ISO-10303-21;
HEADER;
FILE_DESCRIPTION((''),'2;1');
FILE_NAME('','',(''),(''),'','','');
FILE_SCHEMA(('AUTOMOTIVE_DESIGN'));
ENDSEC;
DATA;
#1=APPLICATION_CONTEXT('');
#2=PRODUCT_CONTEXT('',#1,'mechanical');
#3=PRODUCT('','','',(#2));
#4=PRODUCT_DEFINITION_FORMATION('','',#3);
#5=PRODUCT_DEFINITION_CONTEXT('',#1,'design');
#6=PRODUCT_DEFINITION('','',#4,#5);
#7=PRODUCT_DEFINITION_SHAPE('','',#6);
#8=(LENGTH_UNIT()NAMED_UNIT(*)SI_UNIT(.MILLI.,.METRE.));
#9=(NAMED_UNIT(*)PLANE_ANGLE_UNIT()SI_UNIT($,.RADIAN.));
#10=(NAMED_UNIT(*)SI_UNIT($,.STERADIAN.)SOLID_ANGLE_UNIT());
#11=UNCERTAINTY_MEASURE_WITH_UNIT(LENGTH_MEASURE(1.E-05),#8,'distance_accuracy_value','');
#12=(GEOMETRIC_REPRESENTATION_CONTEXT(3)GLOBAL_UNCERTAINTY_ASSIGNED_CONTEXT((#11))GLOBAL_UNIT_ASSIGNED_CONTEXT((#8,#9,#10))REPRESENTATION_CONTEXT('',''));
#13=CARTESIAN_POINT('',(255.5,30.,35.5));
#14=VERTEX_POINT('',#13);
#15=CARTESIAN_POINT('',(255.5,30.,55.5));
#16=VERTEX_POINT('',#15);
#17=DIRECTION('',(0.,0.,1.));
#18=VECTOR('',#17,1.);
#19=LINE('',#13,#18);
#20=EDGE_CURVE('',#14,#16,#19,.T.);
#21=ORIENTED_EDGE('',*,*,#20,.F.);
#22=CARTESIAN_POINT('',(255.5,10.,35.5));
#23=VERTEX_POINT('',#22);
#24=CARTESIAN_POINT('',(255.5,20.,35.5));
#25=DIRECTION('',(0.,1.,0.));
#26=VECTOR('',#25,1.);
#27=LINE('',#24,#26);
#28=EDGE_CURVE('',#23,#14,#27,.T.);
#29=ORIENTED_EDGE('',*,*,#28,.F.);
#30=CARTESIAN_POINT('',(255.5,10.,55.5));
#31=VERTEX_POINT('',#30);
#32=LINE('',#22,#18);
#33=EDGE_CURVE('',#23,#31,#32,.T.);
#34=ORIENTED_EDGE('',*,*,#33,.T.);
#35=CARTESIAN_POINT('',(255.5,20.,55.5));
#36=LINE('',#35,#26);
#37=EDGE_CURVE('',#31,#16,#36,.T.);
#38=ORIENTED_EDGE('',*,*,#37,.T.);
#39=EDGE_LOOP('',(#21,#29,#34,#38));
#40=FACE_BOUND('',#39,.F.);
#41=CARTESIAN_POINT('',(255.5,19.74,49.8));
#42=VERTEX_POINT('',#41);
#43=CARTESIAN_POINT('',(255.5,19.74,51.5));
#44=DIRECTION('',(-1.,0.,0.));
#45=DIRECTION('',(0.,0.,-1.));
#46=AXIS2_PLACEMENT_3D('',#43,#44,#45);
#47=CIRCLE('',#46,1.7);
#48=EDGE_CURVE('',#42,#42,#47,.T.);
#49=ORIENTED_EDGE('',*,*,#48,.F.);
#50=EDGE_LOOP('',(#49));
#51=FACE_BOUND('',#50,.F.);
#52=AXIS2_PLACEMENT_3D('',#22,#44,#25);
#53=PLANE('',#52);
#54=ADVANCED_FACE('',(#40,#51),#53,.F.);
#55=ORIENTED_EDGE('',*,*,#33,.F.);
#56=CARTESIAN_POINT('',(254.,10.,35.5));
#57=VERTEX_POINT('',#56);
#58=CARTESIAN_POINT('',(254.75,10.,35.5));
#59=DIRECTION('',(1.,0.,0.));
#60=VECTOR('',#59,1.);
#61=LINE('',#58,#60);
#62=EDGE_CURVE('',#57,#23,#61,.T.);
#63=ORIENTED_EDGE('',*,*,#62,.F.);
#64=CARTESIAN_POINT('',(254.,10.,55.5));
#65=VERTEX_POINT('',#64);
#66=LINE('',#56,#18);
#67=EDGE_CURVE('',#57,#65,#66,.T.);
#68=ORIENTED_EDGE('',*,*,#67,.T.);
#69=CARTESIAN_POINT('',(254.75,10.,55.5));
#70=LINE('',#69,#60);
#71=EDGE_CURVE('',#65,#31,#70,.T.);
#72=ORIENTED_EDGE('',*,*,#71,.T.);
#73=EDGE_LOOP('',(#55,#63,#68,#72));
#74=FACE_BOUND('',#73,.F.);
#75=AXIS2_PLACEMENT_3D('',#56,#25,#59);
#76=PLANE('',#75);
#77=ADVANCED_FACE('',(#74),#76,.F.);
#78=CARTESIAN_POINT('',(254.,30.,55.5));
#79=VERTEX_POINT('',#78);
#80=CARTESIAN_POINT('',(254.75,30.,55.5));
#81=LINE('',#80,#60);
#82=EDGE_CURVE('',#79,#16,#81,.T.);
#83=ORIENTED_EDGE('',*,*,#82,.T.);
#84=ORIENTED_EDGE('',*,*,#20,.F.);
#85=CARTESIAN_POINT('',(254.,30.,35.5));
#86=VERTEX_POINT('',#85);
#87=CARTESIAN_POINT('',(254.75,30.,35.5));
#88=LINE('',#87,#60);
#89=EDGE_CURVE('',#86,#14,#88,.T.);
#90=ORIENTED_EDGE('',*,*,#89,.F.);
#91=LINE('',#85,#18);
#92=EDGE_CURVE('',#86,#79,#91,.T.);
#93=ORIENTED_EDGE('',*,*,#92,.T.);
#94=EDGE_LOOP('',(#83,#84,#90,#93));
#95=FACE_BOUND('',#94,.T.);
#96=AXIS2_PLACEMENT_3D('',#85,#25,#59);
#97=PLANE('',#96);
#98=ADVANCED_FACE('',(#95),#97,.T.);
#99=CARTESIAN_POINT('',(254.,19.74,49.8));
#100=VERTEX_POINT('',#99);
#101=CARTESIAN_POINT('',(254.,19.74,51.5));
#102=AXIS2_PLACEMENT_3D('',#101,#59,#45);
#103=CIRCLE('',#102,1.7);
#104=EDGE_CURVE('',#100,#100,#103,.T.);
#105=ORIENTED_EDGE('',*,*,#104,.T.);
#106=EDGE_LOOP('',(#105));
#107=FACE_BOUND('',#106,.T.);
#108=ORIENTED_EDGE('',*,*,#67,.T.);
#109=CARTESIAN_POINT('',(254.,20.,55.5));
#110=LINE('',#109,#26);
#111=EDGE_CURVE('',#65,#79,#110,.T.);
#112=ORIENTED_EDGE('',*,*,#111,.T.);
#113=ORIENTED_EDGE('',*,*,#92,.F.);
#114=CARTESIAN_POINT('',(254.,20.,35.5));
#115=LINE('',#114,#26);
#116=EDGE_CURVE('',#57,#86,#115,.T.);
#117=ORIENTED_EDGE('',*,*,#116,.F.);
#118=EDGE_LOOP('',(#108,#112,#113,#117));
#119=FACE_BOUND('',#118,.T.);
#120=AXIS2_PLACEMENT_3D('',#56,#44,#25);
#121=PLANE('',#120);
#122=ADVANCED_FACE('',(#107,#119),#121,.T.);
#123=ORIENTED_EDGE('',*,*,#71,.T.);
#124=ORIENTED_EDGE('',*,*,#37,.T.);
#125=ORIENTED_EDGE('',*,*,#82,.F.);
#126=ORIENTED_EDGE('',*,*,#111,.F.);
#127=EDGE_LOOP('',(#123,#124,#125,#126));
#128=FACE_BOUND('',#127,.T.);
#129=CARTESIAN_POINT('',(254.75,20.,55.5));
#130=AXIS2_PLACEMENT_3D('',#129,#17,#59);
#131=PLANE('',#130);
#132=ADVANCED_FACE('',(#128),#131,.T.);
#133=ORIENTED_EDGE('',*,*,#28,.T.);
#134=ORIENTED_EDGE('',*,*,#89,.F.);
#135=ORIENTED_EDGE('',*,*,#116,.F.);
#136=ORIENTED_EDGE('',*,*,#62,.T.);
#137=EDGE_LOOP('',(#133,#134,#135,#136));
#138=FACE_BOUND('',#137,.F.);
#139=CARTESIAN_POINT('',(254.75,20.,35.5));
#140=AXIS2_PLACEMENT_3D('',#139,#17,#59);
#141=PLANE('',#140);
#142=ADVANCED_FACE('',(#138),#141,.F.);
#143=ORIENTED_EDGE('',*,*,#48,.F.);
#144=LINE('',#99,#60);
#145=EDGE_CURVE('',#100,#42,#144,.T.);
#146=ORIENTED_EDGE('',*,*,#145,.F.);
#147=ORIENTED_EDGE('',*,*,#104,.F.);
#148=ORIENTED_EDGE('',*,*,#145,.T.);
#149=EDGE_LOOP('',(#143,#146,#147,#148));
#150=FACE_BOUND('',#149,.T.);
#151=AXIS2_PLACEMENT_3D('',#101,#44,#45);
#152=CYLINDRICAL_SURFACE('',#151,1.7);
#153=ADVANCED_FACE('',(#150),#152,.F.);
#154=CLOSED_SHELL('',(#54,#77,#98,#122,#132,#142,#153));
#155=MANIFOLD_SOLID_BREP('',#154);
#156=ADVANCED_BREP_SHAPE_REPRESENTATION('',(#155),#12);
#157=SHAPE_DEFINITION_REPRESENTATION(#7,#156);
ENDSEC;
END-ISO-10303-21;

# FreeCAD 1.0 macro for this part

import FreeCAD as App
import Part
import Sketcher
from FreeCAD import Vector

doc = App.newDocument("Part")
body = doc.addObject("PartDesign::Body", "Body")

# Sketch on YZ plane
sketch1 = body.newObject("Sketcher::SketchObject", "Sketch")
sketch1.AttachmentSupport = (doc.getObject("YZ_Plane"), [""])
sketch1.MapMode = "FlatFace"
sketch1.AttachmentOffset = App.Placement(Vector(0, 0, 254), App.Rotation())
sketch1.addGeometry(Part.Circle(Vector(19.74, 51.5, 0), Vector(0, 0, 1), 1.7), False)
sketch1.addConstraint(Sketcher.Constraint("Diameter", 0, 3.4))
sketch1.addConstraint(Sketcher.Constraint("DistanceY", -1, 1, 0, 3, 51.5))
sketch1.addConstraint(Sketcher.Constraint("DistanceX", -1, 1, 0, 3, 19.74))
pad1 = body.newObject("PartDesign::Pad", "Pad")
pad1.Profile = sketch1
pad1.Length = 20
body2 = doc.addObject("PartDesign::Body", "Body001")

# Sketch on XY plane
sketch2 = body2.newObject("Sketcher::SketchObject", "Sketch001")
sketch2.AttachmentSupport = (doc.getObject("XY_Plane001"), [""])
sketch2.MapMode = "FlatFace"
sketch2.AttachmentOffset = App.Placement(Vector(0, 0, 35.5), App.Rotation())
sketch2.addGeometry(Part.LineSegment(Vector(254, 30, 0), Vector(254, 10, 0)), False)
sketch2.addGeometry(Part.LineSegment(Vector(254, 10, 0), Vector(255.5, 10, 0)), False)
sketch2.addGeometry(Part.LineSegment(Vector(255.5, 10, 0), Vector(255.5, 30, 0)), False)
sketch2.addGeometry(Part.LineSegment(Vector(255.5, 30, 0), Vector(254, 30, 0)), False)
sketch2.addConstraint(Sketcher.Constraint("Coincident", 0, 2, 1, 1))
sketch2.addConstraint(Sketcher.Constraint("Coincident", 1, 2, 2, 1))
sketch2.addConstraint(Sketcher.Constraint("Coincident", 2, 2, 3, 1))
sketch2.addConstraint(Sketcher.Constraint("Coincident", 3, 2, 0, 1))
sketch2.addConstraint(Sketcher.Constraint("Vertical", 0))
sketch2.addConstraint(Sketcher.Constraint("Horizontal", 1))
sketch2.addConstraint(Sketcher.Constraint("Vertical", 2))
sketch2.addConstraint(Sketcher.Constraint("Horizontal", 3))
sketch2.addConstraint(Sketcher.Constraint("DistanceY", 0, 2, 0, 1, 20.0))
sketch2.addConstraint(Sketcher.Constraint("DistanceX", 1, 1, 1, 2, 1.5))
sketch2.addConstraint(Sketcher.Constraint("DistanceX", -1, 1, 0, 2, 254.0))
sketch2.addConstraint(Sketcher.Constraint("DistanceY", -1, 1, 0, 2, 10.0))
pad2 = body2.newObject("PartDesign::Pad", "Pad001")
pad2.Profile = sketch2
pad2.Length = 20
doc.recompute()

boolean = body2.newObject("PartDesign::Boolean", "Boolean")
boolean.Type = "Cut"
boolean.addObjects([body])

doc.recompute()
